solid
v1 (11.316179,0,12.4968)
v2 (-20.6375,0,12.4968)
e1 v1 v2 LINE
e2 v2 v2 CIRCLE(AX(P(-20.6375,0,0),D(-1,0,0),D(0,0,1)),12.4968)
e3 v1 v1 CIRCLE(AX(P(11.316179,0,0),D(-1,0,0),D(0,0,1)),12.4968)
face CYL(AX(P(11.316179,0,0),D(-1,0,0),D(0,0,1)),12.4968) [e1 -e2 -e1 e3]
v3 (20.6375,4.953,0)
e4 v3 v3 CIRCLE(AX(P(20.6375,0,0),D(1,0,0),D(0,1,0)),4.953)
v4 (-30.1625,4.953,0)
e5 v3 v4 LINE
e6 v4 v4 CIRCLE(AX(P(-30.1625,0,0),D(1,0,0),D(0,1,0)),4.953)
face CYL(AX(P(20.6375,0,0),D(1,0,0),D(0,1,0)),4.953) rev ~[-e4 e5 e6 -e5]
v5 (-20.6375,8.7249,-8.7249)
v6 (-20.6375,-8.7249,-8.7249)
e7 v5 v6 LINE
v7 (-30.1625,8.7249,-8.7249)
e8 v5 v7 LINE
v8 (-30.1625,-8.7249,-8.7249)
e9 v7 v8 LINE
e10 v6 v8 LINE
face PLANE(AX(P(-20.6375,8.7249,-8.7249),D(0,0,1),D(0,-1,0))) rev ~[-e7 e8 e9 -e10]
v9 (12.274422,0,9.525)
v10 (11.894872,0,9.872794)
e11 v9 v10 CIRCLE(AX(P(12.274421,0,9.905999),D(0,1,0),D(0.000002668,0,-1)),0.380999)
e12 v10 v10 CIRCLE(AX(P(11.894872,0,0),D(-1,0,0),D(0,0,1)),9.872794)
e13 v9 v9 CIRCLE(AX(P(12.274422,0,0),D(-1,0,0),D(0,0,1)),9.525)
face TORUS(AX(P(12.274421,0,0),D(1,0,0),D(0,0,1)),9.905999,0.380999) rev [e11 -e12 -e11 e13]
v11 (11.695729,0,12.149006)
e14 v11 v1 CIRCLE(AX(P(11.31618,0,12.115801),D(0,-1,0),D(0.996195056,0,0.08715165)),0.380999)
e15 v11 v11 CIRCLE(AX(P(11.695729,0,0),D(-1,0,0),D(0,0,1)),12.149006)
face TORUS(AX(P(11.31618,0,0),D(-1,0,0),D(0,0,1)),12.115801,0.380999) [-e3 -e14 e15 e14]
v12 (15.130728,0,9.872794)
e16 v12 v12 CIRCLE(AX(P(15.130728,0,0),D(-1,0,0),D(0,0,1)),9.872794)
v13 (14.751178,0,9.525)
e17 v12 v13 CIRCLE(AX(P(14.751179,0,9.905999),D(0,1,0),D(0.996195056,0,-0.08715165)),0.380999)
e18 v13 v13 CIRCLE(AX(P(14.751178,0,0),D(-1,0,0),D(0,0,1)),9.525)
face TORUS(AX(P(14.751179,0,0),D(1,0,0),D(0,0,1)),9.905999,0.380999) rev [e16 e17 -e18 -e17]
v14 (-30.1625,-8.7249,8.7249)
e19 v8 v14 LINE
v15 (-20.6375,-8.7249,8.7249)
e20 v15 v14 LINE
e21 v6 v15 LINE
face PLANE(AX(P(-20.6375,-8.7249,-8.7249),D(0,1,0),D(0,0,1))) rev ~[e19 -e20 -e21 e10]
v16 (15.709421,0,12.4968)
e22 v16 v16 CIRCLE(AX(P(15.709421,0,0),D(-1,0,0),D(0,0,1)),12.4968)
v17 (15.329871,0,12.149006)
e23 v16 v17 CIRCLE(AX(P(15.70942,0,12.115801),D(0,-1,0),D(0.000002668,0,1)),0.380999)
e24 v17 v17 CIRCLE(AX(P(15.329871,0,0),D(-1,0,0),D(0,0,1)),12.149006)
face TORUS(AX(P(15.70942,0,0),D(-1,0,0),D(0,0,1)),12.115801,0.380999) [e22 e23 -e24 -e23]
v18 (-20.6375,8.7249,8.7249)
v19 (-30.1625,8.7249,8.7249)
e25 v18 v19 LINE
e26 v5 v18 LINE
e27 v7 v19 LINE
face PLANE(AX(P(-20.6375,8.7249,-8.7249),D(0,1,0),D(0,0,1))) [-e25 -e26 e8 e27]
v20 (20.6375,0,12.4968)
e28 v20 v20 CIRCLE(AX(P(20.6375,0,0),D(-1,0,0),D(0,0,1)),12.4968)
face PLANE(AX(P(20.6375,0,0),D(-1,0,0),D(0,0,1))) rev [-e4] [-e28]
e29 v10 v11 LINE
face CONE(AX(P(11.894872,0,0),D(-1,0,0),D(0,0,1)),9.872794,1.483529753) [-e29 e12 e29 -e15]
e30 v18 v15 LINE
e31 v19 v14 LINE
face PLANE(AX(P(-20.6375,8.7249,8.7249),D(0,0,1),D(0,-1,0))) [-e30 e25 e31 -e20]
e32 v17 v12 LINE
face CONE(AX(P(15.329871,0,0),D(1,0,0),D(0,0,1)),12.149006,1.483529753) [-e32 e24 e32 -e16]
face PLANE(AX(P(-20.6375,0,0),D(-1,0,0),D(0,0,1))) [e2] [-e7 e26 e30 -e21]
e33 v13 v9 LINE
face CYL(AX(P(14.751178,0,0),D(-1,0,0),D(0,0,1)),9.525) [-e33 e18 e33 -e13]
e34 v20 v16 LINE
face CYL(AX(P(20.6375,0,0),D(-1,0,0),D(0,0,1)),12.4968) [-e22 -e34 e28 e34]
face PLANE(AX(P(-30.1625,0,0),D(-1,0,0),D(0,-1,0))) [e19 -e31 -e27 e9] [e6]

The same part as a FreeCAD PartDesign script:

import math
import FreeCAD as App
import Part
import Sketcher
from FreeCAD import Vector
Q = App.Units.Quantity

doc = App.newDocument("Part")
body = doc.addObject("PartDesign::Body", "Body")

sketch1 = doc.addObject("Sketcher::SketchObject", "Sketch")
body.addObject(sketch1)
sketch1.AttachmentSupport = (doc.XZ_Plane, [""])
sketch1.MapMode = "FlatFace"
sketch1.addGeometry(Part.LineSegment(Vector(11.316179, 12.4968, 0), Vector(-20.6375, 12.4968, 0)), False)
sketch1.addGeometry(Part.LineSegment(Vector(-20.6375, 12.4968, 0), Vector(-20.6375, 0, 0)), False)
sketch1.addGeometry(Part.LineSegment(Vector(-20.6375, 0, 0), Vector(20.6375, 0, 0)), False)
sketch1.addGeometry(Part.LineSegment(Vector(20.6375, 0, 0), Vector(20.6375, 12.4968, 0)), False)
sketch1.addGeometry(Part.LineSegment(Vector(20.6375, 12.4968, 0), Vector(15.709421, 12.4968, 0)), False)
sketch1.addGeometry(Part.ArcOfCircle(Part.Circle(Vector(15.70942, 12.115801, 0), Vector(0, 0, 1), 0.380999), math.radians(89.999847), math.radians(175.000235)), False)
sketch1.addGeometry(Part.LineSegment(Vector(15.329871, 12.149006, 0), Vector(15.130728, 9.872794, 0)), False)
sketch1.addGeometry(Part.ArcOfCircle(Part.Circle(Vector(14.751179, 9.905999, 0), Vector(0, 0, 1), 0.380999), math.radians(-90.000153), math.radians(-4.999765)), False)
sketch1.addGeometry(Part.LineSegment(Vector(14.751178, 9.525, 0), Vector(12.274422, 9.525, 0)), False)
sketch1.addGeometry(Part.ArcOfCircle(Part.Circle(Vector(12.274421, 9.905999, 0), Vector(0, 0, 1), 0.380999), math.radians(-175.000235), math.radians(-89.999847)), False)
sketch1.addGeometry(Part.LineSegment(Vector(11.894872, 9.872794, 0), Vector(11.695729, 12.149006, 0)), False)
sketch1.addGeometry(Part.ArcOfCircle(Part.Circle(Vector(11.31618, 12.115801, 0), Vector(0, 0, 1), 0.380999), math.radians(4.999765), math.radians(90.000153)), False)
sketch1.addConstraint(Sketcher.Constraint("Coincident", 0, 2, 1, 1))
sketch1.addConstraint(Sketcher.Constraint("Coincident", 1, 2, 2, 1))
sketch1.addConstraint(Sketcher.Constraint("Coincident", 2, 2, 3, 1))
sketch1.addConstraint(Sketcher.Constraint("Coincident", 3, 2, 4, 1))
sketch1.addConstraint(Sketcher.Constraint("Coincident", 4, 2, 5, 1))
sketch1.addConstraint(Sketcher.Constraint("Coincident", 5, 2, 6, 1))
sketch1.addConstraint(Sketcher.Constraint("Coincident", 6, 2, 7, 2))
sketch1.addConstraint(Sketcher.Constraint("Coincident", 7, 1, 8, 1))
sketch1.addConstraint(Sketcher.Constraint("Coincident", 8, 2, 9, 2))
sketch1.addConstraint(Sketcher.Constraint("Coincident", 9, 1, 10, 1))
sketch1.addConstraint(Sketcher.Constraint("Coincident", 10, 2, 11, 1))
sketch1.addConstraint(Sketcher.Constraint("Coincident", 11, 2, 0, 1))
sketch1.addConstraint(Sketcher.Constraint("Horizontal", 0))
sketch1.addConstraint(Sketcher.Constraint("Vertical", 1))
sketch1.addConstraint(Sketcher.Constraint("Horizontal", 2))
sketch1.addConstraint(Sketcher.Constraint("Vertical", 3))
sketch1.addConstraint(Sketcher.Constraint("Horizontal", 4))
sketch1.addConstraint(Sketcher.Constraint("Horizontal", 8))
sketch1.addConstraint(Sketcher.Constraint("PointOnObject", 1, 2, -1))
sketch1.addConstraint(Sketcher.Constraint("Radius", 5, Q("0.0149999 in")))
sketch1.addConstraint(Sketcher.Constraint("Radius", 7, Q("0.0149999 in")))
sketch1.addConstraint(Sketcher.Constraint("Radius", 9, Q("0.0149999 in")))
sketch1.addConstraint(Sketcher.Constraint("Radius", 11, Q("0.0149999 in")))
sketch1.addConstraint(Sketcher.Constraint("DistanceX", 2, 1, 2, 2, Q("1.625 in")))
sketch1.addConstraint(Sketcher.Constraint("DistanceY", 1, 2, 1, 1, Q("0.492 in")))
sketch1.addConstraint(Sketcher.Constraint("DistanceY", 3, 1, 3, 2, Q("0.492 in")))
sketch1.addConstraint(Sketcher.Constraint("DistanceY", -1, 1, 7, 3, Q("0.3899999 in")))
sketch1.addConstraint(Sketcher.Constraint("DistanceX", 0, 2, -1, 1, Q("0.8125 in")))
sketch1.addConstraint(Sketcher.Constraint("DistanceX", 0, 2, 0, 1, Q("31.953679 mm")))
sketch1.addConstraint(Sketcher.Constraint("DistanceX", 4, 2, 4, 1, Q("4.928079 mm")))
sketch1.addConstraint(Sketcher.Constraint("DistanceX", 9, 3, 5, 3, Q("3.434999 mm")))
sketch1.addConstraint(Sketcher.Constraint("DistanceX", 11, 3, 7, 3, Q("3.434999 mm")))
sketch1.addConstraint(Sketcher.Constraint("DistanceX", 9, 3, 4, 2, Q("3.435 mm")))
sketch1.addConstraint(Sketcher.Constraint("DistanceX", 8, 2, 8, 1, Q("2.476756 mm")))
sketch1.addConstraint(Sketcher.Constraint("DistanceX", -1, 1, 7, 3, Q("14.751179 mm")))
sketch1.addConstraint(Sketcher.Constraint("DistanceX", -1, 1, 5, 2, Q("15.329871 mm")))
sketch1.addConstraint(Sketcher.Constraint("DistanceX", -1, 1, 10, 2, Q("11.695729 mm")))
sketch1.addConstraint(Sketcher.Constraint("DistanceX", 7, 3, 6, 2, Q("0.379549 mm")))
sketch1.addConstraint(Sketcher.Constraint("DistanceX", 7, 1, 6, 2, Q("0.37955 mm")))
sketch1.addConstraint(Sketcher.Constraint("DistanceX", 9, 1, 9, 3, Q("0.379549 mm")))
revolution = doc.addObject("PartDesign::Revolution", "Revolution")
body.addObject(revolution)
revolution.Profile = sketch1
revolution.ReferenceAxis = (sketch1, ["H_Axis"])
revolution.Angle = 360

sketch2 = doc.addObject("Sketcher::SketchObject", "Sketch001")
body.addObject(sketch2)
sketch2.AttachmentSupport = (doc.YZ_Plane, [""])
sketch2.MapMode = "FlatFace"
sketch2.AttachmentOffset = App.Placement(Vector(0, 0, -0.8125 * 25.4), App.Rotation())
sketch2.addGeometry(Part.LineSegment(Vector(9, 9, 0), Vector(9, -9, 0)), False)
sketch2.addGeometry(Part.LineSegment(Vector(9, -9, 0), Vector(-9, -9, 0)), False)
sketch2.addGeometry(Part.LineSegment(Vector(-9, -9, 0), Vector(-9, 9, 0)), False)
sketch2.addGeometry(Part.LineSegment(Vector(-9, 9, 0), Vector(9, 9, 0)), False)
sketch2.addConstraint(Sketcher.Constraint("Coincident", 0, 2, 1, 1))
sketch2.addConstraint(Sketcher.Constraint("Coincident", 1, 2, 2, 1))
sketch2.addConstraint(Sketcher.Constraint("Coincident", 2, 2, 3, 1))
sketch2.addConstraint(Sketcher.Constraint("Coincident", 3, 2, 0, 1))
sketch2.addConstraint(Sketcher.Constraint("Vertical", 0))
sketch2.addConstraint(Sketcher.Constraint("Horizontal", 1))
sketch2.addConstraint(Sketcher.Constraint("Vertical", 2))
sketch2.addConstraint(Sketcher.Constraint("Horizontal", 3))
sketch2.addConstraint(Sketcher.Constraint("Symmetric", 0, 2, 2, 2, -1, 1))
sketch2.addConstraint(Sketcher.Constraint("Equal", 3, 0))
sketch2.addConstraint(Sketcher.Constraint("DistanceX", 1, 2, 1, 1, Q("0.687 in")))
pad1 = doc.addObject("PartDesign::Pad", "Pad")
body.addObject(pad1)
pad1.Profile = sketch2
pad1.Length = Q("0.375 in")
pad1.Reversed = True

sketch3 = doc.addObject("Sketcher::SketchObject", "Sketch002")
body.addObject(sketch3)
sketch3.AttachmentSupport = (doc.YZ_Plane, [""])
sketch3.MapMode = "FlatFace"
sketch3.AttachmentOffset = App.Placement(Vector(0, 0, 0.8125 * 25.4), App.Rotation())
sketch3.addGeometry(Part.Circle(Vector(0, 0, 0), Vector(0, 0, 1), 5), False)
sketch3.addConstraint(Sketcher.Constraint("Coincident", 0, 3, -1, 1))
sketch3.addConstraint(Sketcher.Constraint("Diameter", 0, Q("0.39 in")))
pocket1 = doc.addObject("PartDesign::Pocket", "Pocket")
body.addObject(pocket1)
pocket1.Profile = sketch3
pocket1.Type = "ThroughAll"

doc.recompute()
